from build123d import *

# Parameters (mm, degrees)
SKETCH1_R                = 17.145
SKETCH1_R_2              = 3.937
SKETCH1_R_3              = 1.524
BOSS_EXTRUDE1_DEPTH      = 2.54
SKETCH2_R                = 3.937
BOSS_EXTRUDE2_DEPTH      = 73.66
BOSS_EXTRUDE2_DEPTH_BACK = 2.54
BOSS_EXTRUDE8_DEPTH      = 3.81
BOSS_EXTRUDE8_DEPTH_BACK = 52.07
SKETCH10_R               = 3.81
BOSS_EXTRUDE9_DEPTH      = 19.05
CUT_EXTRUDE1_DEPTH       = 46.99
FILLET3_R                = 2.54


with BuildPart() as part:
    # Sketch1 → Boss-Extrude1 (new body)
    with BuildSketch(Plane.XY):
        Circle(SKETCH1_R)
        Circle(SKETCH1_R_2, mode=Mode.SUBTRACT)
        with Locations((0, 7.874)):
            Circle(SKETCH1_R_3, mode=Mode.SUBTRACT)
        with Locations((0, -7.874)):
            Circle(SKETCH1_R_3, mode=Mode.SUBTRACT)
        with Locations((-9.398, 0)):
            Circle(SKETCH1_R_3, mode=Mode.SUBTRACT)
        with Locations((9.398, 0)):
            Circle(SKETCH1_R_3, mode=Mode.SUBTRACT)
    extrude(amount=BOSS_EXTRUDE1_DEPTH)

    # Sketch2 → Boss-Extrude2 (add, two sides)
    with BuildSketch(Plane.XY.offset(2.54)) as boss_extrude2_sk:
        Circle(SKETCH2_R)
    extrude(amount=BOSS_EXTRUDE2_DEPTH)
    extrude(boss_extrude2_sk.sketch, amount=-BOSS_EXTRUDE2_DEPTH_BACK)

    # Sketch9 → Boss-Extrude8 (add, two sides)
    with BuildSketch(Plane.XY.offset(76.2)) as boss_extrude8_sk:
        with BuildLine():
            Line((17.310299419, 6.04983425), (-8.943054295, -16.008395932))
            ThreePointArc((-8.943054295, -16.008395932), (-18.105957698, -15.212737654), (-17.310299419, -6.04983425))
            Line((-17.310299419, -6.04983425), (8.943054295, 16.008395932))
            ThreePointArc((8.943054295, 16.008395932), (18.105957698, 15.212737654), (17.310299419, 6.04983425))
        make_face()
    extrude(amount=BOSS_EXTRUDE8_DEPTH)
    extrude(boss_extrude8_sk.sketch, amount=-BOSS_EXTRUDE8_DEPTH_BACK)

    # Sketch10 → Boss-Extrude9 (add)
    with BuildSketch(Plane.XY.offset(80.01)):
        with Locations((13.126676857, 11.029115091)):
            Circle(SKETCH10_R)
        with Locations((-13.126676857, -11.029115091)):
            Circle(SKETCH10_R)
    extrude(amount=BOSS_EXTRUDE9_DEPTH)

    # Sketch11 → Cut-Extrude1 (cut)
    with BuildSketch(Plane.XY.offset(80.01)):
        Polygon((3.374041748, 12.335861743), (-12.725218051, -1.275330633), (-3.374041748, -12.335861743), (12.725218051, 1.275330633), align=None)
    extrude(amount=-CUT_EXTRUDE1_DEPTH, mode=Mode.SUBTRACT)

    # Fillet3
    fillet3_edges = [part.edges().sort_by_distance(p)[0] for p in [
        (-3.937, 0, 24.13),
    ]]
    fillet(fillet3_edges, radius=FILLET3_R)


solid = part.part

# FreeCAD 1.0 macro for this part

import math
import FreeCAD as App
import Part
import Sketcher
from FreeCAD import Vector
Q = App.Units.Quantity


def edges_at(feature, points):
    """Names of the edges that pass closest to the given points."""
    edges = feature.Shape.Edges
    near = lambda p: min(range(len(edges)), key=lambda i: edges[i].distToShape(Part.Vertex(*p))[0])
    return sorted({f"Edge{near(p) + 1}" for p in points})

doc = App.newDocument("Part")
body = doc.addObject("PartDesign::Body", "Body")

sketch1 = doc.addObject("Sketcher::SketchObject", "Sketch")
body.addObject(sketch1)
sketch1.AttachmentSupport = (doc.XY_Plane, [""])
sketch1.MapMode = "FlatFace"
sketch1.addGeometry([
    Part.Circle(Vector(0, 0, 0), Vector(0, 0, 1), 17.1),
    Part.Circle(Vector(0, -7.9, 0), Vector(0, 0, 1), 1.5),
    Part.Circle(Vector(-9.4, 0, 0), Vector(0, 0, 1), 1.5),
    Part.Circle(Vector(0, 0, 0), Vector(0, 0, 1), 3.9),
    Part.Circle(Vector(0, 7.9, 0), Vector(0, 0, 1), 1.5),
    Part.Circle(Vector(9.4, 0, 0), Vector(0, 0, 1), 1.5),
], False)
sketch1.addConstraint([
    Sketcher.Constraint("Coincident", 0, 3, -1, 1),
    Sketcher.Constraint("Coincident", 3, 3, -1, 1),
    Sketcher.Constraint("Equal", 1, 2),
    Sketcher.Constraint("Equal", 2, 4),
    Sketcher.Constraint("Equal", 4, 5),
    Sketcher.Constraint("Symmetric", 1, 3, 4, 3, -1, 1),
    Sketcher.Constraint("Symmetric", 2, 3, 5, 3, -1, 1),
    Sketcher.Constraint("PointOnObject", 1, 3, -2),
    Sketcher.Constraint("PointOnObject", 2, 3, -1),
    Sketcher.Constraint("Diameter", 0, Q("1.35 in")),
    Sketcher.Constraint("Diameter", 1, Q("0.12 in")),
    Sketcher.Constraint("Diameter", 3, Q("0.31 in")),
    Sketcher.Constraint("DistanceY", 1, 3, -1, 1, Q("0.31 in")),
    Sketcher.Constraint("DistanceX", 2, 3, -1, 1, Q("0.37 in")),
])
pad1 = doc.addObject("PartDesign::Pad", "Pad")
body.addObject(pad1)
pad1.Profile = sketch1
pad1.Length = Q("0.1 in")

sketch2 = doc.addObject("Sketcher::SketchObject", "Sketch001")
body.addObject(sketch2)
sketch2.AttachmentSupport = (doc.XY_Plane, [""])
sketch2.MapMode = "FlatFace"
sketch2.AttachmentOffset = App.Placement(Vector(0, 0, 0.1 * 25.4), App.Rotation())
sketch2.addGeometry(Part.Circle(Vector(0, 0, 0), Vector(0, 0, 1), 3.9), False)
sketch2.addConstraint([
    Sketcher.Constraint("Coincident", 0, 3, -1, 1),
    Sketcher.Constraint("Diameter", 0, Q("0.31 in")),
])
pad2 = doc.addObject("PartDesign::Pad", "Pad001")
body.addObject(pad2)
pad2.Profile = sketch2
pad2.Type = "TwoLengths"
pad2.Length = Q("2.9 in")
pad2.Length2 = Q("0.1 in")

sketch3 = doc.addObject("Sketcher::SketchObject", "Sketch002")
body.addObject(sketch3)
sketch3.AttachmentSupport = (doc.XY_Plane, [""])
sketch3.MapMode = "FlatFace"
sketch3.AttachmentOffset = App.Placement(Vector(0, 0, 3 * 25.4), App.Rotation())
sketch3.addGeometry([
    Part.LineSegment(Vector(-9, -16, 0), Vector(17, 6, 0)),
    Part.ArcOfCircle(Part.Circle(Vector(13, 11, 0), Vector(0, 0, 1), 7), math.radians(-50), math.radians(130)),
    Part.LineSegment(Vector(9, 16, 0), Vector(-17, -6, 0)),
    Part.ArcOfCircle(Part.Circle(Vector(-13, -11, 0), Vector(0, 0, 1), 7), math.radians(130), math.radians(310)),
], False)
sketch3.addConstraint([
    Sketcher.Constraint("Tangent", 0, 2, 1, 1),
    Sketcher.Constraint("Tangent", 1, 2, 2, 1),
    Sketcher.Constraint("Tangent", 2, 2, 3, 1),
    Sketcher.Constraint("Tangent", 3, 2, 0, 1),
    Sketcher.Constraint("Equal", 1, 3),
    Sketcher.Constraint("Symmetric", 1, 3, 3, 3, -1, 1),
    Sketcher.Constraint("Distance", 0, Q("1.35 in")),
    Sketcher.Constraint("Radius", 1, Q("6.503533 mm")),
    Sketcher.Constraint("DistanceX", -1, 1, 0, 2, Q("17.310299 mm")),
])
pad3 = doc.addObject("PartDesign::Pad", "Pad002")
body.addObject(pad3)
pad3.Profile = sketch3
pad3.Type = "TwoLengths"
pad3.Length = Q("0.15 in")
pad3.Length2 = Q("2.05 in")

sketch4 = doc.addObject("Sketcher::SketchObject", "Sketch003")
body.addObject(sketch4)
sketch4.AttachmentSupport = (doc.XY_Plane, [""])
sketch4.MapMode = "FlatFace"
sketch4.AttachmentOffset = App.Placement(Vector(0, 0, 3.15 * 25.4), App.Rotation())
sketch4.addGeometry([
    Part.Circle(Vector(13.1, 11, 0), Vector(0, 0, 1), 3.8),
    Part.Circle(Vector(-13.1, -11, 0), Vector(0, 0, 1), 3.8),
], False)
sketch4.addConstraint([
    Sketcher.Constraint("Equal", 0, 1),
    Sketcher.Constraint("Symmetric", 0, 3, 1, 3, -1, 1),
    Sketcher.Constraint("Diameter", 0, Q("0.3 in")),
    Sketcher.Constraint("DistanceY", 1, 3, 0, 3, Q("22.05823 mm")),
    Sketcher.Constraint("DistanceX", -1, 1, 0, 3, Q("13.126677 mm")),
])
pad4 = doc.addObject("PartDesign::Pad", "Pad003")
body.addObject(pad4)
pad4.Profile = sketch4
pad4.Length = Q("0.75 in")

sketch5 = doc.addObject("Sketcher::SketchObject", "Sketch004")
body.addObject(sketch5)
sketch5.AttachmentSupport = (doc.XY_Plane, [""])
sketch5.MapMode = "FlatFace"
sketch5.AttachmentOffset = App.Placement(Vector(0, 0, 3.15 * 25.4), App.Rotation())
sketch5.addGeometry([
    Part.LineSegment(Vector(3, 12, 0), Vector(-13, -1, 0)),
    Part.LineSegment(Vector(-13, -1, 0), Vector(-3, -12, 0)),
    Part.LineSegment(Vector(-3, -12, 0), Vector(13, 1, 0)),
    Part.LineSegment(Vector(13, 1, 0), Vector(3, 12, 0)),
], False)
sketch5.addConstraint([
    Sketcher.Constraint("Coincident", 0, 2, 1, 1),
    Sketcher.Constraint("Coincident", 1, 2, 2, 1),
    Sketcher.Constraint("Coincident", 2, 2, 3, 1),
    Sketcher.Constraint("Coincident", 3, 2, 0, 1),
    Sketcher.Constraint("Symmetric", 0, 2, 2, 2, -1, 1),
    Sketcher.Constraint("Symmetric", 1, 2, 3, 2, -1, 1),
    Sketcher.Constraint("Perpendicular", 0, 1),
    Sketcher.Constraint("Distance", 0, Q("0.83 in")),
    Sketcher.Constraint("Distance", 1, Q("14.483779 mm")),
    Sketcher.Constraint("DistanceX", 0, 2, -1, 1, Q("12.725218 mm")),
])
pocket1 = doc.addObject("PartDesign::Pocket", "Pocket")
body.addObject(pocket1)
pocket1.Profile = sketch5
pocket1.Length = Q("1.85 in")
doc.recompute()

fillet = doc.addObject("PartDesign::Fillet", "Fillet")
body.addObject(fillet)
fillet.Base = (pocket1, edges_at(pocket1, [(-3.937, 0, 24.13)]))
fillet.Radius = Q("0.1 in")

doc.recompute()
